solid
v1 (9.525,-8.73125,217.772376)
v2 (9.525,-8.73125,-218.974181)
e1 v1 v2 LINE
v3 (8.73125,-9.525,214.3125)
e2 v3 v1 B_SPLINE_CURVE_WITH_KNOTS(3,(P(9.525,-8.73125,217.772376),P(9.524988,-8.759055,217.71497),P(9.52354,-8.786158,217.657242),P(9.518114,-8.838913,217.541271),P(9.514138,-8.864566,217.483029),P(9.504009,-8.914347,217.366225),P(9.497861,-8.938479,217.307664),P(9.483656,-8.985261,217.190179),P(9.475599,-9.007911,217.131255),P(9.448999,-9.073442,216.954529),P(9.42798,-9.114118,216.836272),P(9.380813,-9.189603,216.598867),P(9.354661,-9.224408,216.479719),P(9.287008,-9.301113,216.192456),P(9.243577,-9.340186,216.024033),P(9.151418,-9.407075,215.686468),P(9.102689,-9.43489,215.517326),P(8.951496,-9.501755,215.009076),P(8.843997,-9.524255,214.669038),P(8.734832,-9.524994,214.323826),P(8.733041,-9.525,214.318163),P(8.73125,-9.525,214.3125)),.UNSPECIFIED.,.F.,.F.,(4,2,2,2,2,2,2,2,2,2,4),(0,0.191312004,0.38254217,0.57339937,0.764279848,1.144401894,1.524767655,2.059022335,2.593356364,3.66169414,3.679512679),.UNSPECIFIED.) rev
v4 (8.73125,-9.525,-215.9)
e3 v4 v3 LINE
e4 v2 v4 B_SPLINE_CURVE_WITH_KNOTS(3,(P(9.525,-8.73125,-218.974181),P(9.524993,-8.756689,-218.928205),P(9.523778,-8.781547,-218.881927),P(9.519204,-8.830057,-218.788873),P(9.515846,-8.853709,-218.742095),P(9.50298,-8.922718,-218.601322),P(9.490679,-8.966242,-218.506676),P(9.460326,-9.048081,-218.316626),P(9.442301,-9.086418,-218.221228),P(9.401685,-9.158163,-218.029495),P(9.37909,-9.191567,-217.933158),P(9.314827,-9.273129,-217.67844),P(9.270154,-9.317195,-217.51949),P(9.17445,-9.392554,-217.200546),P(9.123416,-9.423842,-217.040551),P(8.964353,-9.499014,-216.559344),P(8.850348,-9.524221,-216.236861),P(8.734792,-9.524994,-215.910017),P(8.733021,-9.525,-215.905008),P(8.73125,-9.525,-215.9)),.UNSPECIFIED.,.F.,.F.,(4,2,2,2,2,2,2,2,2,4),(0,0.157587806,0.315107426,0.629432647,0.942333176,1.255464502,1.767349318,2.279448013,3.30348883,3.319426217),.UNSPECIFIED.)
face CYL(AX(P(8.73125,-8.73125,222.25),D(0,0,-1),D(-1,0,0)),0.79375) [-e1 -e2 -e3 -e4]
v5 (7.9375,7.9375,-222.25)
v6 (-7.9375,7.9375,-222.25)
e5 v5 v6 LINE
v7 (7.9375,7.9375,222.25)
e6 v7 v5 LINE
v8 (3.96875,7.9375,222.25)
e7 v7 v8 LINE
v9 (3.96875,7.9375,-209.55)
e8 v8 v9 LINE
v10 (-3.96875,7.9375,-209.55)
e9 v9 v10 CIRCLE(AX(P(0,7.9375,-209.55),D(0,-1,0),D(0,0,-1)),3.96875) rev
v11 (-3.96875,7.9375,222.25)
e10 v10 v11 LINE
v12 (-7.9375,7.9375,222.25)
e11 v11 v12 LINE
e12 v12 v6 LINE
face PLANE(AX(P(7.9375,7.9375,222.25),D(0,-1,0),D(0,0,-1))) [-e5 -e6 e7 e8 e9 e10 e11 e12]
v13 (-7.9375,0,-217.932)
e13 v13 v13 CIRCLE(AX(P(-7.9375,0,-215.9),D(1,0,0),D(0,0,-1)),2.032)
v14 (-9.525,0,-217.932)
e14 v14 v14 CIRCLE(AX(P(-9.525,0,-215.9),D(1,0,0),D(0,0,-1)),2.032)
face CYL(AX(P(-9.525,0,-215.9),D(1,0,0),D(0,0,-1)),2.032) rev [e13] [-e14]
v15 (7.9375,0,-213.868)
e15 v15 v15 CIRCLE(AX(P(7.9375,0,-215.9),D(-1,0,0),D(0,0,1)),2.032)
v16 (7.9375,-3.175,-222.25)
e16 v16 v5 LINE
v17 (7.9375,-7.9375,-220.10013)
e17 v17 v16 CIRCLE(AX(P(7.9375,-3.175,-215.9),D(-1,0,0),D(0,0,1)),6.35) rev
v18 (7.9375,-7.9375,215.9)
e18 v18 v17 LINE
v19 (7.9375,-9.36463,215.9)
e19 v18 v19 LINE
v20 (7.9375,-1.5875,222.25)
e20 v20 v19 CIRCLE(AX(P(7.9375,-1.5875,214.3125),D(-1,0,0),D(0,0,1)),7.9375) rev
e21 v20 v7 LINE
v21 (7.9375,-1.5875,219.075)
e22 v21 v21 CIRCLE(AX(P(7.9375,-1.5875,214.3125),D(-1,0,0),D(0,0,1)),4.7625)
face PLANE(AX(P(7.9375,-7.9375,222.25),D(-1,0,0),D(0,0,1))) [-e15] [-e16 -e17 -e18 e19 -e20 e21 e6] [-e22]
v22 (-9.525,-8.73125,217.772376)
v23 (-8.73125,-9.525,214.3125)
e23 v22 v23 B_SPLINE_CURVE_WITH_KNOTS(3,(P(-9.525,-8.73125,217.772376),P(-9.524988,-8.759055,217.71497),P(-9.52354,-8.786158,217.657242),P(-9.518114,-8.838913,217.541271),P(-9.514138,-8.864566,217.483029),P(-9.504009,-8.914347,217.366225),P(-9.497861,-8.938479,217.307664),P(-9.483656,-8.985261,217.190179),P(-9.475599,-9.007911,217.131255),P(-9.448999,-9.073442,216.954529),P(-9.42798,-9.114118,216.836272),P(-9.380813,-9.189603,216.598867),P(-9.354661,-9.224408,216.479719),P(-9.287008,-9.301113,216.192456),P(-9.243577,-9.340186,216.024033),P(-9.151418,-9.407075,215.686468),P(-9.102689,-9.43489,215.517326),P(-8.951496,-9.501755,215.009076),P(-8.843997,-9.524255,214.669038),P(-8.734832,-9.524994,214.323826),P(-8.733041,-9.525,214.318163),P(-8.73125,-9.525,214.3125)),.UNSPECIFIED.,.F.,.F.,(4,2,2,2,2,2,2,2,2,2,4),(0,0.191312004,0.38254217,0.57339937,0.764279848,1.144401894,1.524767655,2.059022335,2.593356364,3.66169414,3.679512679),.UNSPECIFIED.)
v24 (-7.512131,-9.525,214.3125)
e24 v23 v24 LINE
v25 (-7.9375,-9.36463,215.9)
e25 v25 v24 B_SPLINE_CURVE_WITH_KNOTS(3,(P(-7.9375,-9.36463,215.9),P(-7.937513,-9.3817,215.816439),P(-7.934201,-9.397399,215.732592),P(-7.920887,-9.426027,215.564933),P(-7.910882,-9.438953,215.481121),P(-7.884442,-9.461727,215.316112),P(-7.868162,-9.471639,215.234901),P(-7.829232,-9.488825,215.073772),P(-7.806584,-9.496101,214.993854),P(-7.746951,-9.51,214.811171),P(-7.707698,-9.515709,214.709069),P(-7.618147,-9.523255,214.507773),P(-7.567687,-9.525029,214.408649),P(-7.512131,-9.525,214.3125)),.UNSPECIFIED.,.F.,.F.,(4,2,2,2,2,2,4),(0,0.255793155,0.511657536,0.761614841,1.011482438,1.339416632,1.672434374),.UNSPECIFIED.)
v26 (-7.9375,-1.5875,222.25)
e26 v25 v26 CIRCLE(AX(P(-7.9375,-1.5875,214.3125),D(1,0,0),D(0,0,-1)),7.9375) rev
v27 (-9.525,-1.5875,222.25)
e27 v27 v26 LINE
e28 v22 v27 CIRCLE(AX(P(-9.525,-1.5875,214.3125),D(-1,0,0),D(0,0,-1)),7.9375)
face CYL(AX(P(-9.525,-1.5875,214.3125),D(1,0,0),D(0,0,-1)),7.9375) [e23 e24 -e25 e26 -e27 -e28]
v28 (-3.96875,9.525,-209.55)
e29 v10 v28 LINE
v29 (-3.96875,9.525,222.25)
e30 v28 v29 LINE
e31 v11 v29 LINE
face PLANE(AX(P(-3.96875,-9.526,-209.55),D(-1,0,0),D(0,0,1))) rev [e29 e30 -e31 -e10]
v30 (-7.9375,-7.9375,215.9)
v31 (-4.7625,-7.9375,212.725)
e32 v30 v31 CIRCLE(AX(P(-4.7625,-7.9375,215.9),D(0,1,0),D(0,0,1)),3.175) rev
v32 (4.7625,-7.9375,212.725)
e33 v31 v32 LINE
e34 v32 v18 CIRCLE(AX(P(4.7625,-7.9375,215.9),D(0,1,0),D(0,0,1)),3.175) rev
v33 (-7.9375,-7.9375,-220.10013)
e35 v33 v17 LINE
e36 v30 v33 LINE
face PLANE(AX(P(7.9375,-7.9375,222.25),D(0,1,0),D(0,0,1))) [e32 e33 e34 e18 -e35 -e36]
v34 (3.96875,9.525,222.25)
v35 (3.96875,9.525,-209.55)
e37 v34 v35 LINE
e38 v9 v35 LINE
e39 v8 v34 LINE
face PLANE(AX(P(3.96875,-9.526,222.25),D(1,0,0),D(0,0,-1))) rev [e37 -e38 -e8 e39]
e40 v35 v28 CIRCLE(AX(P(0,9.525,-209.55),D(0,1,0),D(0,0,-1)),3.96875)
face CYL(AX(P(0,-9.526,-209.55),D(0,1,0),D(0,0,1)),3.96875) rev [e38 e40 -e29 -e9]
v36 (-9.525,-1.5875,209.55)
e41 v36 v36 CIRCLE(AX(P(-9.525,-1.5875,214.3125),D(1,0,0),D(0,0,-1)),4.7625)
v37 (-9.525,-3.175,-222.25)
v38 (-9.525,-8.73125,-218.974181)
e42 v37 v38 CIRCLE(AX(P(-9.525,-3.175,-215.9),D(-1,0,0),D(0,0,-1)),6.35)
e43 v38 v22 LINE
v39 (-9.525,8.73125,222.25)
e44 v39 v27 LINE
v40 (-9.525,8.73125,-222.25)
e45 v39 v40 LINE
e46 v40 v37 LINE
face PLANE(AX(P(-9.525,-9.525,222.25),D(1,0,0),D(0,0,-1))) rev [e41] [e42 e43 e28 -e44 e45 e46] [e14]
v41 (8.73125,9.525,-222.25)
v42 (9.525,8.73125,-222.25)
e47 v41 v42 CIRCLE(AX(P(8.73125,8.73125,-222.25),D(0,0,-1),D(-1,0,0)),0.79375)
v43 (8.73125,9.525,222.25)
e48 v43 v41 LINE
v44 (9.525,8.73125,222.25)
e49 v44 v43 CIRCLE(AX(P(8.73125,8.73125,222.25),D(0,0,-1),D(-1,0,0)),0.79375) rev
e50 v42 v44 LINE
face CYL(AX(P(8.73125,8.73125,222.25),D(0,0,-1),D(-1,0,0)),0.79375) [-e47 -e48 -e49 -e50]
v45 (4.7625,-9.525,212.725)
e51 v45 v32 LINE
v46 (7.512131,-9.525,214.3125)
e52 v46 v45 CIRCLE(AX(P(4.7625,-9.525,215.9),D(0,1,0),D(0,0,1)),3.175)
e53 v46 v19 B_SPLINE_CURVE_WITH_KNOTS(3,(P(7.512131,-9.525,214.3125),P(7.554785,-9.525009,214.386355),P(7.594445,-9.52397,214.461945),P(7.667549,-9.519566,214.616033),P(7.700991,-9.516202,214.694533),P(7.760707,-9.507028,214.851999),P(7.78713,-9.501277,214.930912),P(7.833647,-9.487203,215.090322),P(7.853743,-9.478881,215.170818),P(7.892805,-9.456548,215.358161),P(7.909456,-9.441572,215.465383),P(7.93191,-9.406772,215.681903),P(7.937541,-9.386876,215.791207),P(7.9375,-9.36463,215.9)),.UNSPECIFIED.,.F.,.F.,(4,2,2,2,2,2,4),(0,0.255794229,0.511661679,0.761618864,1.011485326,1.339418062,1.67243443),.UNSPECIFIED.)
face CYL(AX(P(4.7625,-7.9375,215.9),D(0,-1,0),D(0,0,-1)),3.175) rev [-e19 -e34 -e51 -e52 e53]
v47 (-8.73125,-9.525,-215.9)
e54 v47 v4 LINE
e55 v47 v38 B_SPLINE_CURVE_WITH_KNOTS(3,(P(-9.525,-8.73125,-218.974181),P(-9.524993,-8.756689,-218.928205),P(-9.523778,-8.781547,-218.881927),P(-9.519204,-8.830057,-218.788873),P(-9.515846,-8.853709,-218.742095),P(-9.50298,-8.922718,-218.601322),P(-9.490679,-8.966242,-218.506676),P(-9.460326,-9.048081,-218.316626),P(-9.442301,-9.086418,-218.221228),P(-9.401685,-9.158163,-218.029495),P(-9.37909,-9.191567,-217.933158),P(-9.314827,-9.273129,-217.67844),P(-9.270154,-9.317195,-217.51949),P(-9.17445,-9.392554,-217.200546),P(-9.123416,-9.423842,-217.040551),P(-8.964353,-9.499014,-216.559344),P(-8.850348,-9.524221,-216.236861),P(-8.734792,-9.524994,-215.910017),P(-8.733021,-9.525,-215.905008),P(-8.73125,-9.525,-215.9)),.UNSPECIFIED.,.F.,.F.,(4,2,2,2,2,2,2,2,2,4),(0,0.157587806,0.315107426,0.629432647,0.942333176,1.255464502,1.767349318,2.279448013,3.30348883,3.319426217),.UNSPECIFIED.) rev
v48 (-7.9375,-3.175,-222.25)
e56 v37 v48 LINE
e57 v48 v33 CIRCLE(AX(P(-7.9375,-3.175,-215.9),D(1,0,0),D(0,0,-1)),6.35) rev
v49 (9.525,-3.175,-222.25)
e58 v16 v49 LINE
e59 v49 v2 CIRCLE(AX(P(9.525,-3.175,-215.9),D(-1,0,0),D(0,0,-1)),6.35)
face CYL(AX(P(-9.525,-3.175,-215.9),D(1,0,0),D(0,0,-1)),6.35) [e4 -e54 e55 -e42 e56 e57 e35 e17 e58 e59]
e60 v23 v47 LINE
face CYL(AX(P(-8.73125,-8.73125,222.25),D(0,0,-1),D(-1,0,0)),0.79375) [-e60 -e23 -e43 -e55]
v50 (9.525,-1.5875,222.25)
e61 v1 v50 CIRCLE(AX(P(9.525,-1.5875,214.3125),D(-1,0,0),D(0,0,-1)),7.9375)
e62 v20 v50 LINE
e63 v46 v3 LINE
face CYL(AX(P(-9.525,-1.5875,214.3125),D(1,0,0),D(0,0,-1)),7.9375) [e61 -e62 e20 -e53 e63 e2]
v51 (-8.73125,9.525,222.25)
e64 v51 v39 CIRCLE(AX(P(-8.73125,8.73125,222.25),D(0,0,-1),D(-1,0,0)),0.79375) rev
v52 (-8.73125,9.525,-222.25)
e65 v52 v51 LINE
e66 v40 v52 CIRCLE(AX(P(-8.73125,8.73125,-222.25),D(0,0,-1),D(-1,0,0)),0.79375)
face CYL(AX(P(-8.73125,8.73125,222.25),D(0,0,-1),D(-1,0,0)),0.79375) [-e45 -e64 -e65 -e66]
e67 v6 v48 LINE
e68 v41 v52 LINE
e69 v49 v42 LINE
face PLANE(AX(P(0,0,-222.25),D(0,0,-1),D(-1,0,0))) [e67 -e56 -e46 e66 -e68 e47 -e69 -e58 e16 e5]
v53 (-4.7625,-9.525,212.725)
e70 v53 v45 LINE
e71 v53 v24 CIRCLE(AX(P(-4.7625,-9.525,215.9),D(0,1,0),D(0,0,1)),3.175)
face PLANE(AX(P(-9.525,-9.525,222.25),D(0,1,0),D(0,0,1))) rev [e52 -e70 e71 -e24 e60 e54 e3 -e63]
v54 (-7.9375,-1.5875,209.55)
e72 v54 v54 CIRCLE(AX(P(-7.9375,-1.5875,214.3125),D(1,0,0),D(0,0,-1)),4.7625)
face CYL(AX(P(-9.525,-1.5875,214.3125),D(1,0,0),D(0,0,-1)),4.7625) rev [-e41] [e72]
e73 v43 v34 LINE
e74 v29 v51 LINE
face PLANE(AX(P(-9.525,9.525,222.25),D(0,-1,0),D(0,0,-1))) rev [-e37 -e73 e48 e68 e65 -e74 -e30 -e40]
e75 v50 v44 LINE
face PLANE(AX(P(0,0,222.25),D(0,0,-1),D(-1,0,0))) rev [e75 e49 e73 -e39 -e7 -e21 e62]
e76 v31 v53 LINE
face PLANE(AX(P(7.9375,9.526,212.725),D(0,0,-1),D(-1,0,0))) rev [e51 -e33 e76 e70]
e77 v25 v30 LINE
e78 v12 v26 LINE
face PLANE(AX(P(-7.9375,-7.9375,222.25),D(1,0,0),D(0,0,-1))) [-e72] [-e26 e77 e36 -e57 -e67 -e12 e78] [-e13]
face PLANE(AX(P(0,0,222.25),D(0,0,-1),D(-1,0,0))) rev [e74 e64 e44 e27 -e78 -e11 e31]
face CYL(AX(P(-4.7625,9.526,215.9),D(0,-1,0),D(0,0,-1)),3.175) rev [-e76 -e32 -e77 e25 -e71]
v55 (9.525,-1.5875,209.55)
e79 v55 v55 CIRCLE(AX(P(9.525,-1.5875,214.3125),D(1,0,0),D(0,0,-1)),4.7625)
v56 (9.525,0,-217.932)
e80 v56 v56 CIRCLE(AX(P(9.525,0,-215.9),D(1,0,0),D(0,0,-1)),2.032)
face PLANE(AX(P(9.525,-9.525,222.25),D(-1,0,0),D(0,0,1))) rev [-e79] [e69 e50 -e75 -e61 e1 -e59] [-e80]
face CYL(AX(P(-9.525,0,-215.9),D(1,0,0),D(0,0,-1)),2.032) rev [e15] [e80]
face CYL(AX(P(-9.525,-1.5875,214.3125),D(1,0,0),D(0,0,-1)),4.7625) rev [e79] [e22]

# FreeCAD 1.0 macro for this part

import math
import FreeCAD as App
import Part
import Sketcher

V = App.Vector
Q = App.Units.Quantity


def edges_at(feature, points):
    """Names of the edges that pass closest to the given points."""
    edges = feature.Shape.Edges
    near = lambda p: min(range(len(edges)), key=lambda i: edges[i].distToShape(Part.Vertex(*p))[0])
    return sorted({f"Edge{near(p) + 1}" for p in points})

doc = App.newDocument("Part")
body = doc.addObject("PartDesign::Body", "Body")

# Sketch on XY plane
sketch1 = body.newObject("Sketcher::SketchObject", "Sketch")
sketch1.AttachmentSupport = (doc.getObject("XY_Plane"), [""])
sketch1.MapMode = "FlatFace"
sketch1.addGeometry(Part.LineSegment(V(-10, 10, 0), V(-10, -10, 0)), False)
sketch1.addGeometry(Part.LineSegment(V(-10, -10, 0), V(10, -10, 0)), False)
sketch1.addGeometry(Part.LineSegment(V(10, -10, 0), V(10, 10, 0)), False)
sketch1.addGeometry(Part.LineSegment(V(10, 10, 0), V(-10, 10, 0)), False)
sketch1.addGeometry(Part.LineSegment(V(8, -8, 0), V(-8, -8, 0)), False)
sketch1.addGeometry(Part.LineSegment(V(-8, -8, 0), V(-8, 8, 0)), False)
sketch1.addGeometry(Part.LineSegment(V(-8, 8, 0), V(8, 8, 0)), False)
sketch1.addGeometry(Part.LineSegment(V(8, 8, 0), V(8, -8, 0)), False)
sketch1.addConstraint(Sketcher.Constraint("Coincident", 0, 2, 1, 1))
sketch1.addConstraint(Sketcher.Constraint("Coincident", 1, 2, 2, 1))
sketch1.addConstraint(Sketcher.Constraint("Coincident", 2, 2, 3, 1))
sketch1.addConstraint(Sketcher.Constraint("Coincident", 3, 2, 0, 1))
sketch1.addConstraint(Sketcher.Constraint("Coincident", 4, 2, 5, 1))
sketch1.addConstraint(Sketcher.Constraint("Coincident", 5, 2, 6, 1))
sketch1.addConstraint(Sketcher.Constraint("Coincident", 6, 2, 7, 1))
sketch1.addConstraint(Sketcher.Constraint("Coincident", 7, 2, 4, 1))
sketch1.addConstraint(Sketcher.Constraint("Vertical", 0))
sketch1.addConstraint(Sketcher.Constraint("Horizontal", 1))
sketch1.addConstraint(Sketcher.Constraint("Vertical", 2))
sketch1.addConstraint(Sketcher.Constraint("Horizontal", 3))
sketch1.addConstraint(Sketcher.Constraint("Horizontal", 4))
sketch1.addConstraint(Sketcher.Constraint("Vertical", 5))
sketch1.addConstraint(Sketcher.Constraint("Horizontal", 6))
sketch1.addConstraint(Sketcher.Constraint("Vertical", 7))
sketch1.addConstraint(Sketcher.Constraint("Symmetric", 0, 2, 2, 2, -1, 1))
sketch1.addConstraint(Sketcher.Constraint("Symmetric", 4, 2, 6, 2, -1, 1))
sketch1.addConstraint(Sketcher.Constraint("Equal", 3, 0))
sketch1.addConstraint(Sketcher.Constraint("Equal", 6, 5))
sketch1.addConstraint(Sketcher.Constraint("DistanceX", 1, 1, 1, 2, Q("0.75 in")))
sketch1.addConstraint(Sketcher.Constraint("DistanceX", 4, 2, 4, 1, Q("0.625 in")))
pad1 = body.newObject("PartDesign::Pad", "Pad")
pad1.Profile = sketch1
pad1.Length = Q("17.5 in")
pad1.Midplane = True
doc.recompute()

fillet = body.newObject("PartDesign::Fillet", "Fillet")
fillet.Base = (pad1, edges_at(pad1, [
    (9.525, -9.525, 0),
    (-9.525, -9.525, 0),
    (-9.525, 9.525, 0),
    (9.525, 9.525, 0),
]))
fillet.Radius = Q("0.03125 in")

# Sketch on XZ plane
sketch2 = body.newObject("Sketcher::SketchObject", "Sketch001")
sketch2.AttachmentSupport = (doc.getObject("XZ_Plane"), [""])
sketch2.MapMode = "FlatFace"
sketch2.AttachmentOffset = App.Placement(V(0, 0, -0.375 * 25.4), App.Rotation())
sketch2.addGeometry(Part.LineSegment(V(-4, -209.6, 0), V(-4, 222.2, 0)), False)
sketch2.addGeometry(Part.LineSegment(V(-4, 222.2, 0), V(4, 222.2, 0)), False)
sketch2.addGeometry(Part.LineSegment(V(4, 222.2, 0), V(4, -209.6, 0)), False)
sketch2.addGeometry(Part.ArcOfCircle(Part.Circle(V(0, -209.6, 0), V(0, 0, 1), 4), math.radians(180), math.radians(360)), False)
sketch2.addConstraint(Sketcher.Constraint("Coincident", 0, 2, 1, 1))
sketch2.addConstraint(Sketcher.Constraint("Coincident", 1, 2, 2, 1))
sketch2.addConstraint(Sketcher.Constraint("Tangent", 2, 2, 3, 2))
sketch2.addConstraint(Sketcher.Constraint("Tangent", 3, 1, 0, 1))
sketch2.addConstraint(Sketcher.Constraint("Vertical", 0))
sketch2.addConstraint(Sketcher.Constraint("Horizontal", 1))
sketch2.addConstraint(Sketcher.Constraint("Vertical", 2))
sketch2.addConstraint(Sketcher.Constraint("PointOnObject", 3, 3, -2))
sketch2.addConstraint(Sketcher.Constraint("DistanceY", 0, 1, 0, 2, Q("17 in")))
sketch2.addConstraint(Sketcher.Constraint("Radius", 3, Q("0.15625 in")))
sketch2.addConstraint(Sketcher.Constraint("DistanceY", 3, 3, -1, 1, Q("8.25 in")))
pocket1 = body.newObject("PartDesign::Pocket", "Pocket")
pocket1.Profile = sketch2
pocket1.Type = "UpToFirst"
pocket1.Reversed = True

# Sketch on XZ plane
sketch3 = body.newObject("Sketcher::SketchObject", "Sketch002")
sketch3.AttachmentSupport = (doc.getObject("XZ_Plane"), [""])
sketch3.MapMode = "FlatFace"
sketch3.AttachmentOffset = App.Placement(V(0, 0, 0.375 * 25.4), App.Rotation())
sketch3.addGeometry(Part.LineSegment(V(8, 213, 0), V(8, 222, 0)), False)
sketch3.addGeometry(Part.LineSegment(V(8, 222, 0), V(-8, 222, 0)), False)
sketch3.addGeometry(Part.LineSegment(V(-8, 222, 0), V(-8, 213, 0)), False)
sketch3.addGeometry(Part.LineSegment(V(-8, 213, 0), V(8, 213, 0)), False)
sketch3.addConstraint(Sketcher.Constraint("Coincident", 0, 2, 1, 1))
sketch3.addConstraint(Sketcher.Constraint("Coincident", 1, 2, 2, 1))
sketch3.addConstraint(Sketcher.Constraint("Coincident", 2, 2, 3, 1))
sketch3.addConstraint(Sketcher.Constraint("Coincident", 3, 2, 0, 1))
sketch3.addConstraint(Sketcher.Constraint("Vertical", 0))
sketch3.addConstraint(Sketcher.Constraint("Horizontal", 1))
sketch3.addConstraint(Sketcher.Constraint("Vertical", 2))
sketch3.addConstraint(Sketcher.Constraint("Horizontal", 3))
sketch3.addConstraint(Sketcher.Constraint("DistanceX", 1, 2, 1, 1, Q("0.625 in")))
sketch3.addConstraint(Sketcher.Constraint("DistanceY", 0, 1, 0, 2, Q("0.375 in")))
sketch3.addConstraint(Sketcher.Constraint("DistanceY", -1, 1, 0, 2, Q("8.75 in")))
sketch3.addConstraint(Sketcher.Constraint("DistanceX", -1, 1, 0, 2, Q("0.3125 in")))
pocket2 = body.newObject("PartDesign::Pocket", "Pocket001")
pocket2.Profile = sketch3
pocket2.Type = "UpToFirst"
doc.recompute()

fillet2 = body.newObject("PartDesign::Fillet", "Fillet001")
fillet2.Base = (pocket2, edges_at(pocket2, [(-7.938, -8.731, 212.725), (7.938, -8.731, 212.725)]))
fillet2.Radius = Q("0.125 in")

# Sketch on YZ plane
sketch4 = body.newObject("Sketcher::SketchObject", "Sketch003")
sketch4.AttachmentSupport = (doc.getObject("YZ_Plane"), [""])
sketch4.MapMode = "FlatFace"
sketch4.AttachmentOffset = App.Placement(V(0, 0, 0.375 * 25.4), App.Rotation())
sketch4.addGeometry(Part.LineSegment(V(-2, 222, 0), V(-10, 222, 0)), False)
sketch4.addGeometry(Part.LineSegment(V(-10, 222, 0), V(-10, 214, 0)), False)
sketch4.addGeometry(Part.ArcOfCircle(Part.Circle(V(-2, 214, 0), V(0, 0, 1), 8), math.radians(90), math.radians(180)), False)
sketch4.addConstraint(Sketcher.Constraint("Coincident", 0, 2, 1, 1))
sketch4.addConstraint(Sketcher.Constraint("Tangent", 1, 2, 2, 2))
sketch4.addConstraint(Sketcher.Constraint("Tangent", 2, 1, 0, 1))
sketch4.addConstraint(Sketcher.Constraint("Horizontal", 0))
sketch4.addConstraint(Sketcher.Constraint("Vertical", 1))
sketch4.addConstraint(Sketcher.Constraint("Radius", 2, Q("0.3125 in")))
sketch4.addConstraint(Sketcher.Constraint("DistanceY", -1, 1, 0, 2, Q("8.75 in")))
sketch4.addConstraint(Sketcher.Constraint("DistanceX", 2, 3, -1, 1, Q("0.0625 in")))
pocket3 = body.newObject("PartDesign::Pocket", "Pocket002")
pocket3.Profile = sketch4
pocket3.Type = "ThroughAll"

# Sketch on YZ plane
sketch5 = body.newObject("Sketcher::SketchObject", "Sketch004")
sketch5.AttachmentSupport = (doc.getObject("YZ_Plane"), [""])
sketch5.MapMode = "FlatFace"
sketch5.AttachmentOffset = App.Placement(V(0, 0, 0.375 * 25.4), App.Rotation())
sketch5.addGeometry(Part.Circle(V(-1.6, 214.3, 0), V(0, 0, 1), 4.8), False)
sketch5.addGeometry(Part.Circle(V(0, -215.9, 0), V(0, 0, 1), 2), False)
sketch5.addConstraint(Sketcher.Constraint("PointOnObject", 1, 3, -2))
sketch5.addConstraint(Sketcher.Constraint("Diameter", 1, Q("0.16 in")))
sketch5.addConstraint(Sketcher.Constraint("Diameter", 0, Q("0.375 in")))
sketch5.addConstraint(Sketcher.Constraint("DistanceY", 1, 3, -1, 1, Q("8.5 in")))
sketch5.addConstraint(Sketcher.Constraint("DistanceX", 0, 3, -1, 1, Q("0.0625 in")))
sketch5.addConstraint(Sketcher.Constraint("DistanceY", -1, 1, 0, 3, Q("8.4375 in")))
pocket4 = body.newObject("PartDesign::Pocket", "Pocket003")
pocket4.Profile = sketch5
pocket4.Type = "ThroughAll"

# Sketch on YZ plane
sketch6 = body.newObject("Sketcher::SketchObject", "Sketch005")
sketch6.AttachmentSupport = (doc.getObject("YZ_Plane"), [""])
sketch6.MapMode = "FlatFace"
sketch6.AttachmentOffset = App.Placement(V(0, 0, 0.375 * 25.4), App.Rotation())
sketch6.addGeometry(Part.LineSegment(V(-10, -216, 0), V(-10, -222, 0)), False)
sketch6.addGeometry(Part.LineSegment(V(-10, -222, 0), V(-3, -222, 0)), False)
sketch6.addGeometry(Part.ArcOfCircle(Part.Circle(V(-3, -216, 0), V(0, 0, 1), 6), math.radians(180), math.radians(270)), False)
sketch6.addConstraint(Sketcher.Constraint("Coincident", 0, 2, 1, 1))
sketch6.addConstraint(Sketcher.Constraint("Tangent", 1, 2, 2, 2))
sketch6.addConstraint(Sketcher.Constraint("Tangent", 2, 1, 0, 1))
sketch6.addConstraint(Sketcher.Constraint("Vertical", 0))
sketch6.addConstraint(Sketcher.Constraint("Horizontal", 1))
sketch6.addConstraint(Sketcher.Constraint("Radius", 2, Q("0.25 in")))
sketch6.addConstraint(Sketcher.Constraint("DistanceY", 2, 3, -1, 1, Q("8.5 in")))
sketch6.addConstraint(Sketcher.Constraint("DistanceX", 2, 3, -1, 1, Q("0.125 in")))
pocket5 = body.newObject("PartDesign::Pocket", "Pocket004")
pocket5.Profile = sketch6
pocket5.Type = "ThroughAll"

doc.recompute()
